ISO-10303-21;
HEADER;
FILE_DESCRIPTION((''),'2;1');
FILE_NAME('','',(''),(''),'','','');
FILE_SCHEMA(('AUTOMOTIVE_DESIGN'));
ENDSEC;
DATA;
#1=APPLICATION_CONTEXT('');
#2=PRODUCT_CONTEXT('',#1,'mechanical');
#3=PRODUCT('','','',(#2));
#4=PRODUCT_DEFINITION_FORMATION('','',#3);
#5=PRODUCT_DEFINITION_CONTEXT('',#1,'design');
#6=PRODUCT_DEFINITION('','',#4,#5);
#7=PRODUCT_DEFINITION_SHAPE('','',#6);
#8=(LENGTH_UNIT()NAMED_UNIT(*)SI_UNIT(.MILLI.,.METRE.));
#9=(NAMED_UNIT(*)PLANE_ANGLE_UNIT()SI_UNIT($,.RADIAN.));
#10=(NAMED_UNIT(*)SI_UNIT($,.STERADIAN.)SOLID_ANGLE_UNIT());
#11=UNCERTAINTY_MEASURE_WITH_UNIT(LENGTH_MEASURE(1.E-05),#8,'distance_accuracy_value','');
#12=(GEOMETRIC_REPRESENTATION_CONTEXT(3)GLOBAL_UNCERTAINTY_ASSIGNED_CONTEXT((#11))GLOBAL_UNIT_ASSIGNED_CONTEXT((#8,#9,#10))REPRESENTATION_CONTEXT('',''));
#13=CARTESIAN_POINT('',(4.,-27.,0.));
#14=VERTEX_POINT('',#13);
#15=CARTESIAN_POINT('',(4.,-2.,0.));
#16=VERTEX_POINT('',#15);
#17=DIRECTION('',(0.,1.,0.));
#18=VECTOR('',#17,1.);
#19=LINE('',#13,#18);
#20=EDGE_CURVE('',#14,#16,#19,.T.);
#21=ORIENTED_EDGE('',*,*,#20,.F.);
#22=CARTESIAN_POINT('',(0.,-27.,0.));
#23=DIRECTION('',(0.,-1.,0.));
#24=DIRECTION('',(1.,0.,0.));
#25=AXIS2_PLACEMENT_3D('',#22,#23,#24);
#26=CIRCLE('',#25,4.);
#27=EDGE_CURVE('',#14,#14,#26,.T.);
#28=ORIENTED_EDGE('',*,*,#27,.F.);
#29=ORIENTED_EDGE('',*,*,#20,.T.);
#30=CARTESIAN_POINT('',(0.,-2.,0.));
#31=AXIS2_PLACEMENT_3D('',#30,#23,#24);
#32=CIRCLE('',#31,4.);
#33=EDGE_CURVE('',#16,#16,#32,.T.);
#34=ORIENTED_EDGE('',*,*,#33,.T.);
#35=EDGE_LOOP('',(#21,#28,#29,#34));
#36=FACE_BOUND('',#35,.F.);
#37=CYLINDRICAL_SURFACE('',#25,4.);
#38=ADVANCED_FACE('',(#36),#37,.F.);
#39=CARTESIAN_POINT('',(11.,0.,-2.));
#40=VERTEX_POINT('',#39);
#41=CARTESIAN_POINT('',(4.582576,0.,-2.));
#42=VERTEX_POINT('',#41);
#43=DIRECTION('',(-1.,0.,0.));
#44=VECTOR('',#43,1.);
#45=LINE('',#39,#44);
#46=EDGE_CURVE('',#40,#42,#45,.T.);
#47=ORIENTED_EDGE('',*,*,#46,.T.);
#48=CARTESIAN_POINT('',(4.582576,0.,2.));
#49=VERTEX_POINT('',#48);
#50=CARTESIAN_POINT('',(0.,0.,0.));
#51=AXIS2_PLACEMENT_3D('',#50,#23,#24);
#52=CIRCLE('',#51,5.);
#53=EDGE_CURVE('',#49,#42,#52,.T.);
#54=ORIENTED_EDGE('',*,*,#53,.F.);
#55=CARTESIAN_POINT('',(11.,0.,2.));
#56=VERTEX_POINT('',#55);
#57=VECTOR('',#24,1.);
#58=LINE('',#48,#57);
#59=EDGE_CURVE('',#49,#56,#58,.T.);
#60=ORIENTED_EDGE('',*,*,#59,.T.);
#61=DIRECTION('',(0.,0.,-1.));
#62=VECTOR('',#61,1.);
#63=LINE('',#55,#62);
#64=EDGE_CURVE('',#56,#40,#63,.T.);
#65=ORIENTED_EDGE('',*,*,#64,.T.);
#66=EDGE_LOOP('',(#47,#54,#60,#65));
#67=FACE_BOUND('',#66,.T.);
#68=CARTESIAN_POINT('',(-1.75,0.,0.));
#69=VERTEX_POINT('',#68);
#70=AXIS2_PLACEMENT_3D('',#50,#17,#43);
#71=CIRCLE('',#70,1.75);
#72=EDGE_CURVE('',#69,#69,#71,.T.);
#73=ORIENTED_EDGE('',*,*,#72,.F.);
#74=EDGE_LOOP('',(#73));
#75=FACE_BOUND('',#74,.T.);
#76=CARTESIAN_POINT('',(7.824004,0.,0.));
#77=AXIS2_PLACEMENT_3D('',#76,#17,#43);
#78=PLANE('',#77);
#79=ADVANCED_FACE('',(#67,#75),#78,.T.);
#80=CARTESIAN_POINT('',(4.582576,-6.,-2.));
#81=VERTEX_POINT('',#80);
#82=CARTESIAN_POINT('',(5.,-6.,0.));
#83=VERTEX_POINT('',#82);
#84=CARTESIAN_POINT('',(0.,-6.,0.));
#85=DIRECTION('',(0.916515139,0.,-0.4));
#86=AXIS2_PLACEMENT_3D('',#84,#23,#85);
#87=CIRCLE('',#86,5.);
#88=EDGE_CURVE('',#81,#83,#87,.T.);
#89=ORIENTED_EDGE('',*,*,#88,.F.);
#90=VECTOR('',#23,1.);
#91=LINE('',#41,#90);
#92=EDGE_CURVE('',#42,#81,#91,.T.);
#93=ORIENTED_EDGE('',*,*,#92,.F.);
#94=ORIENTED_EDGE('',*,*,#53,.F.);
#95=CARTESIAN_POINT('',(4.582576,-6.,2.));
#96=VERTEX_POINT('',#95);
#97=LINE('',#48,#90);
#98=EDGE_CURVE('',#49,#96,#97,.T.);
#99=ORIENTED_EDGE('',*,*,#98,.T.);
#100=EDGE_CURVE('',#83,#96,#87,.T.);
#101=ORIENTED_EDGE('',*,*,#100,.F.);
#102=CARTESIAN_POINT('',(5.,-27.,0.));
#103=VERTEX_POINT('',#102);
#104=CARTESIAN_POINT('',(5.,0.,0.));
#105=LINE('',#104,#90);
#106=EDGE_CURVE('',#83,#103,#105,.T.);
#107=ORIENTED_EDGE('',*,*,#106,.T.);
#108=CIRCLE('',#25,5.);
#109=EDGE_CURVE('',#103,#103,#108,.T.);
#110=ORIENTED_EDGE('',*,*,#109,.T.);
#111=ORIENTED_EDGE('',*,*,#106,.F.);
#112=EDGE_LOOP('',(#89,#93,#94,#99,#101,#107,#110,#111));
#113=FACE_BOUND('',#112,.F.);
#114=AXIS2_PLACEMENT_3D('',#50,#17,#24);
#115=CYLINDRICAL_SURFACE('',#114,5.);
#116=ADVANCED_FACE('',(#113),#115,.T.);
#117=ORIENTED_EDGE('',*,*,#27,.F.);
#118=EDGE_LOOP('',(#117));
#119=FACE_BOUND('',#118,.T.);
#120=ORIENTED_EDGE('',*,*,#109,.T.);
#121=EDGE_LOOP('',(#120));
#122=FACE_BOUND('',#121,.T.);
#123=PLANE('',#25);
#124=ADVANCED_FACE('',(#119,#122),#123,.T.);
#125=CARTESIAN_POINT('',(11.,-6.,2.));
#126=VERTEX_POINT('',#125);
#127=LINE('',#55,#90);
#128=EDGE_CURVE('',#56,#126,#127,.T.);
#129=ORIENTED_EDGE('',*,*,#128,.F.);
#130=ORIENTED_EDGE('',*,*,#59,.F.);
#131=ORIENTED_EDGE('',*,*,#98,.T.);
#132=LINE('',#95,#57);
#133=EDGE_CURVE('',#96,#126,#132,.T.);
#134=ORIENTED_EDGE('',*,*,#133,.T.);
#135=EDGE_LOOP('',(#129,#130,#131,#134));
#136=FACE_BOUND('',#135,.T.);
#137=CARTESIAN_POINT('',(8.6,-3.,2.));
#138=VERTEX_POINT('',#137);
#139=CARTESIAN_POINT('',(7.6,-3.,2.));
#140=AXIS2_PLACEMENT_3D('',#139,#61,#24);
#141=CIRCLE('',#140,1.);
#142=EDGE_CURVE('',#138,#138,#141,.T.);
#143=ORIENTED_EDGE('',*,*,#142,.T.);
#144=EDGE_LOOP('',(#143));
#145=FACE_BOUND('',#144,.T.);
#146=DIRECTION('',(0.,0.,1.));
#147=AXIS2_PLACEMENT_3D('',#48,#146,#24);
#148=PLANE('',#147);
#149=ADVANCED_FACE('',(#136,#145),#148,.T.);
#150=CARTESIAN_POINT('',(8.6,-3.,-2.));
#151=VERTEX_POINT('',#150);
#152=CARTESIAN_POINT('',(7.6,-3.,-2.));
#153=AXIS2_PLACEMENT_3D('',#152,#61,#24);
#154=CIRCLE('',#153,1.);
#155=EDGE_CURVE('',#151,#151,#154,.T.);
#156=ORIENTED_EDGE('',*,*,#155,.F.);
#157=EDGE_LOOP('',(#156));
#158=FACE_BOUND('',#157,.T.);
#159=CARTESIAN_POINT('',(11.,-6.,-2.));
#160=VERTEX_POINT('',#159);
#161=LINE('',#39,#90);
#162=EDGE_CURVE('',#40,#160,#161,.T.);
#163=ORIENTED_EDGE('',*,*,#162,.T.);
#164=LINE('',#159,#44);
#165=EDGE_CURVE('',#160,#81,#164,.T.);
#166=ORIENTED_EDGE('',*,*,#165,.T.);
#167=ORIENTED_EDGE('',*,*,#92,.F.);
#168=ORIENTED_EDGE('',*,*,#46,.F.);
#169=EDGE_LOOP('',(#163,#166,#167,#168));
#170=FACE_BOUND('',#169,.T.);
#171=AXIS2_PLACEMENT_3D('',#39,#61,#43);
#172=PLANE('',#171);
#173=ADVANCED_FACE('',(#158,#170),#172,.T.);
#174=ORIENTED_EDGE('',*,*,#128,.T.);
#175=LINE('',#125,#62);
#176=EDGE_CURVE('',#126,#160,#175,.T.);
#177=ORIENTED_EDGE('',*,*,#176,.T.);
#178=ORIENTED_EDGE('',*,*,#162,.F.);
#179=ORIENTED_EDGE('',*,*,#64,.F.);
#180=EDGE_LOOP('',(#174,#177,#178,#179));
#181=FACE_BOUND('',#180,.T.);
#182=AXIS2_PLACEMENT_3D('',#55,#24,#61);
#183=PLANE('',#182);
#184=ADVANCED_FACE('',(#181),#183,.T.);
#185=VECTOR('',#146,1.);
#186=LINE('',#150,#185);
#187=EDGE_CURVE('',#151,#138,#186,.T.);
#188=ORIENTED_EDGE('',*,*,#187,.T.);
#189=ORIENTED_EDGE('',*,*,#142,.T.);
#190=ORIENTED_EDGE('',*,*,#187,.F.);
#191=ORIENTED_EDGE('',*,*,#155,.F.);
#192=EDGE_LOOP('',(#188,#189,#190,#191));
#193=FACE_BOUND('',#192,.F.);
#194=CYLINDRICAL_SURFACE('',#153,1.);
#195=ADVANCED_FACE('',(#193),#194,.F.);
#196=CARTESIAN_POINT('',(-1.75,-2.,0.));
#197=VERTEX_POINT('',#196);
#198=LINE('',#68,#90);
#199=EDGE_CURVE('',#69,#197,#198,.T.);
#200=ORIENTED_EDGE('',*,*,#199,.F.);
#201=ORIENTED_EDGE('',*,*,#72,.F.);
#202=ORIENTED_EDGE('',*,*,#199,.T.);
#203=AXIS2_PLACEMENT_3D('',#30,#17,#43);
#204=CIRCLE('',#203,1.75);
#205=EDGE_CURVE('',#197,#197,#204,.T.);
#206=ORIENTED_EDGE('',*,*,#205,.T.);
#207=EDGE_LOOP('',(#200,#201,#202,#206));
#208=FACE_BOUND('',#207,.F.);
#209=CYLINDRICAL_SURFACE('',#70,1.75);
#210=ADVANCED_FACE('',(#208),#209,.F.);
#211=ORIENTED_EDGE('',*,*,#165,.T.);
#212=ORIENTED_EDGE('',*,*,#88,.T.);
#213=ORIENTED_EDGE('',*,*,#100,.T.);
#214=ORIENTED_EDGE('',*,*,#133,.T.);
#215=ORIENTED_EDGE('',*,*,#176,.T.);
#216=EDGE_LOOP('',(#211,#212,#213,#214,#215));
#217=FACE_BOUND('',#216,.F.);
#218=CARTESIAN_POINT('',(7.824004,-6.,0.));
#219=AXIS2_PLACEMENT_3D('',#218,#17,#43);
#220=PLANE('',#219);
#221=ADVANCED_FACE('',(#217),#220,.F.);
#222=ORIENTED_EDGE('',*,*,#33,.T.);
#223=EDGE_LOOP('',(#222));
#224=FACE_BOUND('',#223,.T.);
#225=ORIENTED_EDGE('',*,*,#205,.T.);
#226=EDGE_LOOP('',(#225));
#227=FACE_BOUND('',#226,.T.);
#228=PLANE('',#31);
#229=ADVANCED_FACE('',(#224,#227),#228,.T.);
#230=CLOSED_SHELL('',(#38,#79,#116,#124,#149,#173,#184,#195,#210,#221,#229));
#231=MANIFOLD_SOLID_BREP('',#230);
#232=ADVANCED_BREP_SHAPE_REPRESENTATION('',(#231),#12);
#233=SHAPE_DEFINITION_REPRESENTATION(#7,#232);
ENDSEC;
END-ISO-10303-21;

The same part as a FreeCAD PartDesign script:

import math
import FreeCAD as App
import Part
import Sketcher

V = App.Vector

doc = App.newDocument("Part")
params = doc.addObject("Spreadsheet::Sheet", "Params")
for row, (alias, value) in enumerate([
    ("sketch1_diameter", "10 mm"),
    ("pad1_length", "27 mm"),
    ("sketch2_diameter", "8 mm"),
    ("pocket1_length", "25 mm"),
    ("sketch3_diameter", "3.5 mm"),
    ("pocket2_length", "25 mm"),
    ("sketch4_radius", "5 mm"),
    ("sketch4_height", "4 mm"),
    ("pad2_length", "6 mm"),
    ("sketch5_diameter", "2 mm"),
    ("pocket3_length", "25 mm"),
], start=1):
    params.set(f"A{row}", alias)
    params.set(f"B{row}", "=" + value)
    params.setAlias(f"B{row}", alias)

body = doc.addObject("PartDesign::Body", "Body")

# Sketch on XZ plane
sketch1 = body.newObject("Sketcher::SketchObject", "Sketch")
sketch1.AttachmentSupport = (doc.getObject("XZ_Plane"), [""])
sketch1.MapMode = "FlatFace"
sketch1.addGeometry(Part.Circle(V(0, 0, 0), V(0, 0, 1), 5), False)
sketch1.addConstraint([
    Sketcher.Constraint("Coincident", 0, 3, -1, 1),
    Sketcher.Constraint("Diameter", 0, 10.0),
])
sketch1.setExpression("Constraints[1]", "Params.sketch1_diameter")
pad1 = body.newObject("PartDesign::Pad", "Pad")
pad1.Profile = sketch1
pad1.setExpression("Length", "Params.pad1_length")

# Sketch on XZ plane
sketch2 = body.newObject("Sketcher::SketchObject", "Sketch001")
sketch2.AttachmentSupport = (doc.getObject("XZ_Plane"), [""])
sketch2.MapMode = "FlatFace"
sketch2.AttachmentOffset = App.Placement(V(0, 0, 27), App.Rotation())
sketch2.addGeometry(Part.Circle(V(0, 0, 0), V(0, 0, 1), 4), False)
sketch2.addConstraint([
    Sketcher.Constraint("Coincident", 0, 3, -1, 1),
    Sketcher.Constraint("Diameter", 0, 8.0),
])
sketch2.setExpression("Constraints[1]", "Params.sketch2_diameter")
pocket1 = body.newObject("PartDesign::Pocket", "Pocket")
pocket1.Profile = sketch2
pocket1.setExpression("Length", "Params.pocket1_length")

# Sketch on XZ plane
sketch3 = body.newObject("Sketcher::SketchObject", "Sketch002")
sketch3.AttachmentSupport = (doc.getObject("XZ_Plane"), [""])
sketch3.MapMode = "FlatFace"
sketch3.addGeometry(Part.Circle(V(0, 0, 0), V(0, 0, 1), 1.8), False)
sketch3.addConstraint([
    Sketcher.Constraint("Coincident", 0, 3, -1, 1),
    Sketcher.Constraint("Diameter", 0, 3.5),
])
sketch3.setExpression("Constraints[1]", "Params.sketch3_diameter")
pocket2 = body.newObject("PartDesign::Pocket", "Pocket001")
pocket2.Profile = sketch3
pocket2.setExpression("Length", "Params.pocket2_length")
pocket2.Reversed = True

# Sketch on XZ plane
sketch4 = body.newObject("Sketcher::SketchObject", "Sketch003")
sketch4.AttachmentSupport = (doc.getObject("XZ_Plane"), [""])
sketch4.MapMode = "FlatFace"
sketch4.addGeometry([
    Part.LineSegment(V(11, -2, 0), V(4.6, -2, 0)),
    Part.ArcOfCircle(Part.Circle(V(0, 0, 0), V(0, 0, 1), 5), math.radians(-24), math.radians(24)),
    Part.LineSegment(V(4.6, 2, 0), V(11, 2, 0)),
    Part.LineSegment(V(11, 2, 0), V(11, -2, 0)),
], False)
sketch4.addConstraint([
    Sketcher.Constraint("Coincident", 0, 2, 1, 1),
    Sketcher.Constraint("Coincident", 1, 2, 2, 1),
    Sketcher.Constraint("Coincident", 2, 2, 3, 1),
    Sketcher.Constraint("Coincident", 3, 2, 0, 1),
    Sketcher.Constraint("Horizontal", 0),
    Sketcher.Constraint("Horizontal", 2),
    Sketcher.Constraint("Vertical", 3),
    Sketcher.Constraint("Coincident", 1, 3, -1, 1),
    Sketcher.Constraint("Vertical", 0, 2, 1, 2),
    Sketcher.Constraint("Radius", 1, 5.0),
    Sketcher.Constraint("DistanceY", 3, 2, 3, 1, 4.0),
    Sketcher.Constraint("DistanceX", -1, 1, 2, 2, 11.0),
])
sketch4.setExpression("Constraints[9]", "Params.sketch4_radius")
sketch4.setExpression("Constraints[10]", "Params.sketch4_height")
pad2 = body.newObject("PartDesign::Pad", "Pad001")
pad2.Profile = sketch4
pad2.setExpression("Length", "Params.pad2_length")

# Sketch on XY plane
sketch5 = body.newObject("Sketcher::SketchObject", "Sketch004")
sketch5.AttachmentSupport = (doc.getObject("XY_Plane"), [""])
sketch5.MapMode = "FlatFace"
sketch5.AttachmentOffset = App.Placement(V(0, 0, -2), App.Rotation())
sketch5.addGeometry(Part.Circle(V(7.6, -3, 0), V(0, 0, 1), 1), False)
sketch5.addConstraint([
    Sketcher.Constraint("Diameter", 0, 2.0),
    Sketcher.Constraint("DistanceY", 0, 3, -1, 1, 3.0),
    Sketcher.Constraint("DistanceX", -1, 1, 0, 3, 7.6),
])
sketch5.setExpression("Constraints[0]", "Params.sketch5_diameter")
pocket3 = body.newObject("PartDesign::Pocket", "Pocket002")
pocket3.Profile = sketch5
pocket3.setExpression("Length", "Params.pocket3_length")
pocket3.Reversed = True

doc.recompute()
